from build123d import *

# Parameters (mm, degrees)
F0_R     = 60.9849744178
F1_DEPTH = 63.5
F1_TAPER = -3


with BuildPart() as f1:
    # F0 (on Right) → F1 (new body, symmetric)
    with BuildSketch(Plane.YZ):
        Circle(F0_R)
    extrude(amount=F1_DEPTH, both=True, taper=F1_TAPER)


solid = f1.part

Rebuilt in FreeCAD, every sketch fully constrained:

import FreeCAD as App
import Part
import Sketcher
Q = App.Units.Quantity

doc = App.newDocument("Part")
body = doc.addObject("PartDesign::Body", "Body")

sketch1 = body.newObject("Sketcher::SketchObject", "Sketch")
sketch1.AttachmentSupport = (doc.getObject("YZ_Plane"), [""])
sketch1.MapMode = "FlatFace"
sketch1.addGeometry(Part.Circle(App.Vector(0, 0, 0), App.Vector(0, 0, 1), 61), False)
sketch1.addConstraint(Sketcher.Constraint("Coincident", 0, 3, -1, 1))
sketch1.addConstraint(Sketcher.Constraint("Diameter", 0, 121.969949))
pad1 = body.newObject("PartDesign::Pad", "Pad")
pad1.Profile = sketch1
pad1.Length = Q("5 in")
pad1.Midplane = True
pad1.TaperAngle = 3

doc.recompute()
